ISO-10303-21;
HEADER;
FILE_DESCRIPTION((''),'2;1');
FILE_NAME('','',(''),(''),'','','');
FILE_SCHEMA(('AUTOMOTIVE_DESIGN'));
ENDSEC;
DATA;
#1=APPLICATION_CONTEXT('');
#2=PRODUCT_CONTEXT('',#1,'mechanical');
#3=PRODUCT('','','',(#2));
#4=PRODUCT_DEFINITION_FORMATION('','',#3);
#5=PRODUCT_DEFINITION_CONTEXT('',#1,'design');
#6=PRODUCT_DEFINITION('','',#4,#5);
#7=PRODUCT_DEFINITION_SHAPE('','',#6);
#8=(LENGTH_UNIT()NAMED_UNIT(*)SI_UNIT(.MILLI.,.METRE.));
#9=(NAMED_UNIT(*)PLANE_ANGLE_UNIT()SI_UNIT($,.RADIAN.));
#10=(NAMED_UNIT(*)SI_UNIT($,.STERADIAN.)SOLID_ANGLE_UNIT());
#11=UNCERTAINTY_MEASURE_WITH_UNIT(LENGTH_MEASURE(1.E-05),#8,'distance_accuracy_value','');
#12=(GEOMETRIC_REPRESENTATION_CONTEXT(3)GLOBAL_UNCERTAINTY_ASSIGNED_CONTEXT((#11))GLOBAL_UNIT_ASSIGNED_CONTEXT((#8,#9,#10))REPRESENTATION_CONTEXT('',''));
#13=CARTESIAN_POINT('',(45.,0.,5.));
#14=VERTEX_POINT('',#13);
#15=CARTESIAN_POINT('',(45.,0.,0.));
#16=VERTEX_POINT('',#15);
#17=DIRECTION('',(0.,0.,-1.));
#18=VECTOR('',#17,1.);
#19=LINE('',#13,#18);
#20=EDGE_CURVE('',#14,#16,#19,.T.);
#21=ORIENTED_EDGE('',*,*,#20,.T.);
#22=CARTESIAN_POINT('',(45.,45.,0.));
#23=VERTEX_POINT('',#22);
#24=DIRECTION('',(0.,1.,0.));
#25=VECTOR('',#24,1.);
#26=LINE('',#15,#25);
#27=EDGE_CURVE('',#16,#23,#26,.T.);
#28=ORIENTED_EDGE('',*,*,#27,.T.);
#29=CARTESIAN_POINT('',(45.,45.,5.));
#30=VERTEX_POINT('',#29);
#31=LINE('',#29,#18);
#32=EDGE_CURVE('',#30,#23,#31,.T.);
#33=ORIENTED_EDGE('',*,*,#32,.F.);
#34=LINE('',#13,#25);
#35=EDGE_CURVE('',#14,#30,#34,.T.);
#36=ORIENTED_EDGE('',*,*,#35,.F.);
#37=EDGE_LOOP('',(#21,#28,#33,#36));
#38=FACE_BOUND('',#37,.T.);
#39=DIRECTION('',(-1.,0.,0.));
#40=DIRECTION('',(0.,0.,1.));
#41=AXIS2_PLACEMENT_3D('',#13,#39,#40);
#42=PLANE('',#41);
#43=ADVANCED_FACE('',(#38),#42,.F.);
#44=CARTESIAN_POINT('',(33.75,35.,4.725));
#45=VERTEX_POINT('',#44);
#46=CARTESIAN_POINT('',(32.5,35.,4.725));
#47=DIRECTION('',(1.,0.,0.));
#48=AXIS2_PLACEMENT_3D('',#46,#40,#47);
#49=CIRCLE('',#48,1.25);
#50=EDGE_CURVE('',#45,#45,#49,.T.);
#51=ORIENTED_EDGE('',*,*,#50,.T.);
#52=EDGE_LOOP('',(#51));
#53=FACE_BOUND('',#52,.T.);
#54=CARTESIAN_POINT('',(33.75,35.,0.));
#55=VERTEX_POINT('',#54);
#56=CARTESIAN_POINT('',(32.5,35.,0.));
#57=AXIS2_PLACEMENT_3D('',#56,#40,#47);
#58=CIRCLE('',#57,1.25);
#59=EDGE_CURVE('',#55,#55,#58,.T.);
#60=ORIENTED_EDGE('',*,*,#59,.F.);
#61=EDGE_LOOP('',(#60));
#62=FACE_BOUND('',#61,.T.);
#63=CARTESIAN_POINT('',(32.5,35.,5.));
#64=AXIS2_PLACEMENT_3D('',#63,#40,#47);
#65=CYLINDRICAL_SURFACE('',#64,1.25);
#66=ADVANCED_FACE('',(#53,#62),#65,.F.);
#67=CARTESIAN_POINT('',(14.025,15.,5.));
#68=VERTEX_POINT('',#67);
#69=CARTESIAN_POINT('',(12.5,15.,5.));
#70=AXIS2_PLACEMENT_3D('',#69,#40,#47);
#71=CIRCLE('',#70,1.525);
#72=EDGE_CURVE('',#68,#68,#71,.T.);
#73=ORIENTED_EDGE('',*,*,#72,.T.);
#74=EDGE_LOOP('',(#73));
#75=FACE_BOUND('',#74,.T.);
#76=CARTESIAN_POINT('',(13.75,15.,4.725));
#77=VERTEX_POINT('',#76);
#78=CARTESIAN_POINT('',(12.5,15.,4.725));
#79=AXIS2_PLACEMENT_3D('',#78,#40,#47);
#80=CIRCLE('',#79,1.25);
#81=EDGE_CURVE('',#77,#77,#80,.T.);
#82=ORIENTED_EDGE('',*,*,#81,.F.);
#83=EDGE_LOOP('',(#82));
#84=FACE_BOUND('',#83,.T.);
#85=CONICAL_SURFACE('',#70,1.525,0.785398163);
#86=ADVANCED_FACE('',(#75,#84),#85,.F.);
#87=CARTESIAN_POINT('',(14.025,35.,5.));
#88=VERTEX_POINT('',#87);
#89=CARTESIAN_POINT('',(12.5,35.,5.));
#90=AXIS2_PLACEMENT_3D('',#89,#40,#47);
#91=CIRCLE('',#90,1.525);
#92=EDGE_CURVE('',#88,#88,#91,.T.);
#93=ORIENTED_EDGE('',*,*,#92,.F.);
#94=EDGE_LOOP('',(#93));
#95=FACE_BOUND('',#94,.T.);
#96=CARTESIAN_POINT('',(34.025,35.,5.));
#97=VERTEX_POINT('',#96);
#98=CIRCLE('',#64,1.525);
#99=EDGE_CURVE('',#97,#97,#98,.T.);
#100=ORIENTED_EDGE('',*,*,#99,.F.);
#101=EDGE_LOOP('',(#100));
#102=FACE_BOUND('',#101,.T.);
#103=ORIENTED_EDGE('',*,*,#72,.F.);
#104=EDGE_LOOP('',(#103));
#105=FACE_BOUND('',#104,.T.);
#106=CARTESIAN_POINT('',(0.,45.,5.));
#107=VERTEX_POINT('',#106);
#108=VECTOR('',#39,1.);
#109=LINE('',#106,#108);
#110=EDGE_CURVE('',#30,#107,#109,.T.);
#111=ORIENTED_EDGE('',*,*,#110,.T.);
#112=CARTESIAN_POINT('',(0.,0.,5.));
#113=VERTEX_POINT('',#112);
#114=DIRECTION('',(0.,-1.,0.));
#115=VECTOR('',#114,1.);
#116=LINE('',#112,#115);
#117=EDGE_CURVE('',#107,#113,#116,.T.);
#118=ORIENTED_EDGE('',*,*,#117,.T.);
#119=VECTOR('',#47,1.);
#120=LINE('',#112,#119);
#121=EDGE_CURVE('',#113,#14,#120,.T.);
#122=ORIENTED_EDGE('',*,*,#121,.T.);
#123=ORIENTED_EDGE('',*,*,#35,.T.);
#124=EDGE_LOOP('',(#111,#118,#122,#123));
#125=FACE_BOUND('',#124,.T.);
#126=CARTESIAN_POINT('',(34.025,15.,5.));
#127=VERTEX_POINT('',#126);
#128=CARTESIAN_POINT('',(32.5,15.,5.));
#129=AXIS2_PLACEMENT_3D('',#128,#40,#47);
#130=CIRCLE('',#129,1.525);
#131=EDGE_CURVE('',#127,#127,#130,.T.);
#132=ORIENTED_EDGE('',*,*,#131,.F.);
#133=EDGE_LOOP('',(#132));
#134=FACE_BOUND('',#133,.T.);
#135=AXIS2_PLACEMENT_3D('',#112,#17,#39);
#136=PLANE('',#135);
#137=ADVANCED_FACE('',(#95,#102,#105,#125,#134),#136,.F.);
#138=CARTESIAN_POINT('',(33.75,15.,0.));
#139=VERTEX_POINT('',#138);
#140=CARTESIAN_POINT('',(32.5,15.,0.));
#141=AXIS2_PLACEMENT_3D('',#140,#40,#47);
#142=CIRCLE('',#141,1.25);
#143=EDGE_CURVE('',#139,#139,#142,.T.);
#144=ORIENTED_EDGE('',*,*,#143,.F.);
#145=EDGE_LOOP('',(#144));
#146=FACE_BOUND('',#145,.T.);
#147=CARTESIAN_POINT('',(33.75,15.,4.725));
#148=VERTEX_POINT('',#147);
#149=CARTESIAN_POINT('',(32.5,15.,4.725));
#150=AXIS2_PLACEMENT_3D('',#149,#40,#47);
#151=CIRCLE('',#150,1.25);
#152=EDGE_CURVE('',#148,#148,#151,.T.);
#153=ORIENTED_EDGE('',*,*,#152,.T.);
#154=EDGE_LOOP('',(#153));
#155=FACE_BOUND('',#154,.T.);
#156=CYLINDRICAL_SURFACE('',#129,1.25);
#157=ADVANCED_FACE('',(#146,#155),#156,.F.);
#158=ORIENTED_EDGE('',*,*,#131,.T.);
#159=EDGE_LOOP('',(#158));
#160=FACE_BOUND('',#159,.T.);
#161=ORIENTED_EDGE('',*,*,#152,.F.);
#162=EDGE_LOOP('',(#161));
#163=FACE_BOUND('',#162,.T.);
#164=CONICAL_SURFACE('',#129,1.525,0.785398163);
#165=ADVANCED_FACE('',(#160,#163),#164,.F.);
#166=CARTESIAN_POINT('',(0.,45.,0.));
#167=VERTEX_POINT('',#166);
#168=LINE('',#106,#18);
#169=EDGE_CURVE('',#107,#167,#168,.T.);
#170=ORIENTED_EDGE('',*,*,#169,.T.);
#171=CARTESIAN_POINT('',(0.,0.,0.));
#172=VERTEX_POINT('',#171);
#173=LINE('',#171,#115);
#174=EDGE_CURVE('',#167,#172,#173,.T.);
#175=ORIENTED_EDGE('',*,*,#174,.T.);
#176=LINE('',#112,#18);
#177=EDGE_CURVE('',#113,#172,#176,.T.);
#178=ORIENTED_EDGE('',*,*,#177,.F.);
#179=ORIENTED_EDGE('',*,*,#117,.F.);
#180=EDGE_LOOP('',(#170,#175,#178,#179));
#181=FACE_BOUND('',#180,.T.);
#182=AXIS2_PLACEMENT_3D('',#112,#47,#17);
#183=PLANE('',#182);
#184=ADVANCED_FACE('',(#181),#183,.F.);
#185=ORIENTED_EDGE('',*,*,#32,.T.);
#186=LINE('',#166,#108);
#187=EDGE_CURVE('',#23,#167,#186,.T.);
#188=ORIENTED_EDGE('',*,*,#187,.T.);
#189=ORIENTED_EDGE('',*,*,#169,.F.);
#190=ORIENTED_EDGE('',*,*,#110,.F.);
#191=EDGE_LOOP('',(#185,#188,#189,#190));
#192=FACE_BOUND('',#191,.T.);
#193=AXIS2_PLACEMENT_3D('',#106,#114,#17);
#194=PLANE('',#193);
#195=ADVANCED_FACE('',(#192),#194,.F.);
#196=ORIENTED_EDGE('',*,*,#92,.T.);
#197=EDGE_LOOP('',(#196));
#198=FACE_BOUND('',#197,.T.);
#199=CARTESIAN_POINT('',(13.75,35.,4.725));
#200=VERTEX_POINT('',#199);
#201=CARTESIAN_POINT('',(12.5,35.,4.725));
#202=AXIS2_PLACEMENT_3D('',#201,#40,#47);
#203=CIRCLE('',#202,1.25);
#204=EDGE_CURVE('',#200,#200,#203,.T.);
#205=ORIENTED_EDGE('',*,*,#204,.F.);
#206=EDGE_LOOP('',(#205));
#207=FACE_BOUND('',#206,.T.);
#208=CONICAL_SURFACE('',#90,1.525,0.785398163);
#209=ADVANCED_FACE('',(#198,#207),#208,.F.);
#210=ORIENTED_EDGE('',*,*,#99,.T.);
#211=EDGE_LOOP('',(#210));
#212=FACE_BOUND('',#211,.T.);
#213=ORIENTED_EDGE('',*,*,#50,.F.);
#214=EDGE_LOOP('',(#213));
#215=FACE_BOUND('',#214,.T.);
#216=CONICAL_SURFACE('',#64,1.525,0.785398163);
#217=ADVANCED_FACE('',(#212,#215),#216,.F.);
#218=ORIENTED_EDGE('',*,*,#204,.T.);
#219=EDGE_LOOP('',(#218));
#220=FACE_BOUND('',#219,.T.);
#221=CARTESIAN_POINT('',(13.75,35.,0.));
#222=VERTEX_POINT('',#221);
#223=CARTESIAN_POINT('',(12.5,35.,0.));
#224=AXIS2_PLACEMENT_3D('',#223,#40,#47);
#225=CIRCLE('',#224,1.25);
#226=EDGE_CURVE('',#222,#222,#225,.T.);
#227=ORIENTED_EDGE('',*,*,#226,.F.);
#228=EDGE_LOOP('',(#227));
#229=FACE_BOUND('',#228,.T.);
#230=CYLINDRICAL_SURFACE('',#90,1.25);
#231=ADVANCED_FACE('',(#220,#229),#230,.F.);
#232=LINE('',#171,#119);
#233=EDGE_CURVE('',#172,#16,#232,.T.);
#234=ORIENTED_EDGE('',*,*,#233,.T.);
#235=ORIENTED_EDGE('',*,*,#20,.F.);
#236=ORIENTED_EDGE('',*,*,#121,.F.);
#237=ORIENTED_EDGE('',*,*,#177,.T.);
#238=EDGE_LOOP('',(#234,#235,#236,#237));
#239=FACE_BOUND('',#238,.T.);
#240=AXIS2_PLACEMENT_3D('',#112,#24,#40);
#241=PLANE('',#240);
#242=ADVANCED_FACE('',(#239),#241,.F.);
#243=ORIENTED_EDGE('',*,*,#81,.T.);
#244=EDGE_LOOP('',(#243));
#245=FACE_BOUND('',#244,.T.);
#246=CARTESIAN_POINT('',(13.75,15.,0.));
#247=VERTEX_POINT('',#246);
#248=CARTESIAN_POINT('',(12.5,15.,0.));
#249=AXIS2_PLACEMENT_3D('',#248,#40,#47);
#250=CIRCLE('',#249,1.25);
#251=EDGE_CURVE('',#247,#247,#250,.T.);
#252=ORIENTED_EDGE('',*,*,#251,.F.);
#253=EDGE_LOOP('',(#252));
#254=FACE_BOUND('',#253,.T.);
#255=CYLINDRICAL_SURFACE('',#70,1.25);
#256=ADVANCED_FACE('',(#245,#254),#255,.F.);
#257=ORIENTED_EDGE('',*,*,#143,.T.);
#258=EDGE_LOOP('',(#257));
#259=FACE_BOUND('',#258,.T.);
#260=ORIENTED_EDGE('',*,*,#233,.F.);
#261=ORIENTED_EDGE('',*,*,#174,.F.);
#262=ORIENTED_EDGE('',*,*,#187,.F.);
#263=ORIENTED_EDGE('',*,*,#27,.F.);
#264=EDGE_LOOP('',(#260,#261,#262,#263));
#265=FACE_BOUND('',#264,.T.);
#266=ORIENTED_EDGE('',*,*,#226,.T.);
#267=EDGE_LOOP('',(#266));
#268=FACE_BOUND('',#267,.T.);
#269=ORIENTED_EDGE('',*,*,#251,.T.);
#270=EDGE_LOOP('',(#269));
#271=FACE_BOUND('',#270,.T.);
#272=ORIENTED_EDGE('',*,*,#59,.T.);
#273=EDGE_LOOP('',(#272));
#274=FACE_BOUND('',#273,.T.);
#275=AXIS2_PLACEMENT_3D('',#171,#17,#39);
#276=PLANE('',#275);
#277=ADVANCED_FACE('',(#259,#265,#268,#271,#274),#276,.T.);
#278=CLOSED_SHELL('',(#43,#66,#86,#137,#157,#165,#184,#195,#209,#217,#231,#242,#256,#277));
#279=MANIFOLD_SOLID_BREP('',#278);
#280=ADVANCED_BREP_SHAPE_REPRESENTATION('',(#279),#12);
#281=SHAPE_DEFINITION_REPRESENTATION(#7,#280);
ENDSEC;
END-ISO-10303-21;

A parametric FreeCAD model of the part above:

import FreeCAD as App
import Part
import Sketcher
from FreeCAD import Vector
Q = App.Units.Quantity


def add_polygon(sketch, points):
    """Adds a closed chain of lines whose ends are joined by coincident constraints."""
    first, n = sketch.GeometryCount, len(points)
    for a, b in zip(points, points[1:] + points[:1]):
        sketch.addGeometry(Part.LineSegment(App.Vector(*a, 0), App.Vector(*b, 0)), False)
    for i in range(n):
        sketch.addConstraint(Sketcher.Constraint("Coincident", first + i, 2, first + (i + 1) % n, 1))

doc = App.newDocument("Part")
body = doc.addObject("PartDesign::Body", "Body")

# Sketch on XY plane
sketch1 = doc.addObject("Sketcher::SketchObject", "Sketch")
body.addObject(sketch1)
sketch1.AttachmentSupport = (doc.XY_Plane, [""])
sketch1.MapMode = "FlatFace"
add_polygon(sketch1, [(0, 45), (0, 0), (45, 0), (45, 45)])  # lines 0-3
sketch1.addConstraint([
    Sketcher.Constraint("Vertical", 0),
    Sketcher.Constraint("Horizontal", 1),
    Sketcher.Constraint("Vertical", 2),
    Sketcher.Constraint("Horizontal", 3),
    Sketcher.Constraint("Coincident", 0, 2, -1, 1),
    Sketcher.Constraint("Equal", 3, 0),
    Sketcher.Constraint("DistanceX", 1, 1, 1, 2, Q("45 mm")),
])
pad1 = doc.addObject("PartDesign::Pad", "Pad")
body.addObject(pad1)
pad1.Profile = sketch1
pad1.Length = 5

# Sketch on XY plane
sketch2 = doc.addObject("Sketcher::SketchObject", "Sketch001")
body.addObject(sketch2)
sketch2.AttachmentSupport = (doc.XY_Plane, [""])
sketch2.MapMode = "FlatFace"
sketch2.AttachmentOffset = App.Placement(Vector(0, 0, 5), App.Rotation())
sketch2.addGeometry([
    Part.Circle(Vector(12.5, 35, 0), Vector(0, 0, 1), 1.25),
    Part.Circle(Vector(32.5, 35, 0), Vector(0, 0, 1), 1.25),
    Part.Circle(Vector(32.5, 15, 0), Vector(0, 0, 1), 1.25),
    Part.Circle(Vector(12.5, 15, 0), Vector(0, 0, 1), 1.25),
], False)
sketch2.addConstraint([
    Sketcher.Constraint("Equal", 0, 1),
    Sketcher.Constraint("Equal", 1, 2),
    Sketcher.Constraint("Equal", 2, 3),
    Sketcher.Constraint("Horizontal", 0, 3, 1, 3),
    Sketcher.Constraint("Horizontal", 2, 3, 3, 3),
    Sketcher.Constraint("Vertical", 1, 3, 2, 3),
    Sketcher.Constraint("Vertical", 0, 3, 3, 3),
    Sketcher.Constraint("Diameter", 0, Q("2.5 mm")),
    Sketcher.Constraint("DistanceY", -1, 1, 0, 3, Q("35 mm")),
    Sketcher.Constraint("DistanceY", -1, 1, 2, 3, Q("15 mm")),
    Sketcher.Constraint("DistanceX", 0, 3, 1, 3, Q("20 mm")),
    Sketcher.Constraint("DistanceX", -1, 1, 0, 3, Q("12.5 mm")),
])
doc.recompute()
hole = doc.addObject("PartDesign::Hole", "Hole")
body.addObject(hole)
hole.Profile = sketch2
hole.ThreadType = "None"
hole.Diameter = 2.5
hole.DepthType = "ThroughAll"
hole.HoleCutType = "Countersink"
hole.HoleCutDiameter = 3.05
hole.HoleCutCountersinkAngle = 90

doc.recompute()
